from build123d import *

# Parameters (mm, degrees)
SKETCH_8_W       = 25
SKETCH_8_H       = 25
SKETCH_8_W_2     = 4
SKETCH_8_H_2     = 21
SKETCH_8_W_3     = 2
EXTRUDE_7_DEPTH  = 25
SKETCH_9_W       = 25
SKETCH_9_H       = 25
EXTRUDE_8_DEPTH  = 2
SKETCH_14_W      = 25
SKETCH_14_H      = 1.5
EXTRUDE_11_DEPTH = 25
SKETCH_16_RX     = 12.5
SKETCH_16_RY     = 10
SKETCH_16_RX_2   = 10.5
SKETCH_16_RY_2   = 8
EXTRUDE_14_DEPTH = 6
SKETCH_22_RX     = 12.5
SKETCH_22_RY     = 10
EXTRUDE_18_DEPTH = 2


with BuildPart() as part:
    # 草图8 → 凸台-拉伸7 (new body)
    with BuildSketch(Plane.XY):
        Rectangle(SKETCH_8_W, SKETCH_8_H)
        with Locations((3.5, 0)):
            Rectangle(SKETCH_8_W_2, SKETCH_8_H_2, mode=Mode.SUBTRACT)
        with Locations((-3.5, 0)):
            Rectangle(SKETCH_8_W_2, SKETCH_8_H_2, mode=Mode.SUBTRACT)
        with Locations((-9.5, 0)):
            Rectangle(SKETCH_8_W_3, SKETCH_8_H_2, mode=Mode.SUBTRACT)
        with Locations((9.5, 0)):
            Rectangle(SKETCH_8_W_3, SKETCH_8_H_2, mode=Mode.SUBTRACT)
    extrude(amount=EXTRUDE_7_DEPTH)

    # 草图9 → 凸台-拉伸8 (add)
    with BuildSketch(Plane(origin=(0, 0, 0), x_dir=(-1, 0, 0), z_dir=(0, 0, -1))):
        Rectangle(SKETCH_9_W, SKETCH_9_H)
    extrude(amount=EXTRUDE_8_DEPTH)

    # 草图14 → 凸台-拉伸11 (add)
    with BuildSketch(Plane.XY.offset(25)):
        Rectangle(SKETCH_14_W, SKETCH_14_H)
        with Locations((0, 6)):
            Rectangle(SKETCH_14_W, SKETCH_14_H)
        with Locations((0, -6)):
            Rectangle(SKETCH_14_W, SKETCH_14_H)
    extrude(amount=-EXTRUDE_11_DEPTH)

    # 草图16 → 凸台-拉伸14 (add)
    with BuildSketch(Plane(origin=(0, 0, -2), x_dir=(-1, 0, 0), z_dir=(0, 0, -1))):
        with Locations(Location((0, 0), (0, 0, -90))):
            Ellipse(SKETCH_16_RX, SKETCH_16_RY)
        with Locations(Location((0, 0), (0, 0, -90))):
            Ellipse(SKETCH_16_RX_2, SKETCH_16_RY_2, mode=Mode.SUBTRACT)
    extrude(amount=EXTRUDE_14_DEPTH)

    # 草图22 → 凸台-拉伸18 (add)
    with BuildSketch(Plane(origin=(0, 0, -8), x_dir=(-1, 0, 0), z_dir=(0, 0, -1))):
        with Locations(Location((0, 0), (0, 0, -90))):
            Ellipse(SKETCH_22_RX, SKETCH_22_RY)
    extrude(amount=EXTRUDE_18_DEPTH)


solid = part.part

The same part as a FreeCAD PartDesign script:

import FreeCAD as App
import Part
import Sketcher
from FreeCAD import Vector
Q = App.Units.Quantity

doc = App.newDocument("Part")
body = doc.addObject("PartDesign::Body", "Body")

# Sketch on XY plane
sketch1 = body.newObject("Sketcher::SketchObject", "Sketch")
sketch1.AttachmentSupport = (doc.getObject("XY_Plane"), [""])
sketch1.MapMode = "FlatFace"
sketch1.addGeometry(Part.LineSegment(Vector(-12.5, 12.5, 0), Vector(-12.5, -12.5, 0)), False)
sketch1.addGeometry(Part.LineSegment(Vector(-12.5, -12.5, 0), Vector(12.5, -12.5, 0)), False)
sketch1.addGeometry(Part.LineSegment(Vector(12.5, -12.5, 0), Vector(12.5, 12.5, 0)), False)
sketch1.addGeometry(Part.LineSegment(Vector(12.5, 12.5, 0), Vector(-12.5, 12.5, 0)), False)
sketch1.addGeometry(Part.LineSegment(Vector(-8.5, -10.5, 0), Vector(-10.5, -10.5, 0)), False)
sketch1.addGeometry(Part.LineSegment(Vector(-10.5, -10.5, 0), Vector(-10.5, 10.5, 0)), False)
sketch1.addGeometry(Part.LineSegment(Vector(-10.5, 10.5, 0), Vector(-8.5, 10.5, 0)), False)
sketch1.addGeometry(Part.LineSegment(Vector(-8.5, 10.5, 0), Vector(-8.5, -10.5, 0)), False)
sketch1.addGeometry(Part.LineSegment(Vector(-1.5, -10.5, 0), Vector(-5.5, -10.5, 0)), False)
sketch1.addGeometry(Part.LineSegment(Vector(-5.5, -10.5, 0), Vector(-5.5, 10.5, 0)), False)
sketch1.addGeometry(Part.LineSegment(Vector(-5.5, 10.5, 0), Vector(-1.5, 10.5, 0)), False)
sketch1.addGeometry(Part.LineSegment(Vector(-1.5, 10.5, 0), Vector(-1.5, -10.5, 0)), False)
sketch1.addGeometry(Part.LineSegment(Vector(5.5, -10.5, 0), Vector(1.5, -10.5, 0)), False)
sketch1.addGeometry(Part.LineSegment(Vector(1.5, -10.5, 0), Vector(1.5, 10.5, 0)), False)
sketch1.addGeometry(Part.LineSegment(Vector(1.5, 10.5, 0), Vector(5.5, 10.5, 0)), False)
sketch1.addGeometry(Part.LineSegment(Vector(5.5, 10.5, 0), Vector(5.5, -10.5, 0)), False)
sketch1.addGeometry(Part.LineSegment(Vector(10.5, -10.5, 0), Vector(8.5, -10.5, 0)), False)
sketch1.addGeometry(Part.LineSegment(Vector(8.5, -10.5, 0), Vector(8.5, 10.5, 0)), False)
sketch1.addGeometry(Part.LineSegment(Vector(8.5, 10.5, 0), Vector(10.5, 10.5, 0)), False)
sketch1.addGeometry(Part.LineSegment(Vector(10.5, 10.5, 0), Vector(10.5, -10.5, 0)), False)
sketch1.addConstraint(Sketcher.Constraint("Coincident", 0, 2, 1, 1))
sketch1.addConstraint(Sketcher.Constraint("Coincident", 1, 2, 2, 1))
sketch1.addConstraint(Sketcher.Constraint("Coincident", 2, 2, 3, 1))
sketch1.addConstraint(Sketcher.Constraint("Coincident", 3, 2, 0, 1))
sketch1.addConstraint(Sketcher.Constraint("Coincident", 4, 2, 5, 1))
sketch1.addConstraint(Sketcher.Constraint("Coincident", 5, 2, 6, 1))
sketch1.addConstraint(Sketcher.Constraint("Coincident", 6, 2, 7, 1))
sketch1.addConstraint(Sketcher.Constraint("Coincident", 7, 2, 4, 1))
sketch1.addConstraint(Sketcher.Constraint("Coincident", 8, 2, 9, 1))
sketch1.addConstraint(Sketcher.Constraint("Coincident", 9, 2, 10, 1))
sketch1.addConstraint(Sketcher.Constraint("Coincident", 10, 2, 11, 1))
sketch1.addConstraint(Sketcher.Constraint("Coincident", 11, 2, 8, 1))
sketch1.addConstraint(Sketcher.Constraint("Coincident", 12, 2, 13, 1))
sketch1.addConstraint(Sketcher.Constraint("Coincident", 13, 2, 14, 1))
sketch1.addConstraint(Sketcher.Constraint("Coincident", 14, 2, 15, 1))
sketch1.addConstraint(Sketcher.Constraint("Coincident", 15, 2, 12, 1))
sketch1.addConstraint(Sketcher.Constraint("Coincident", 16, 2, 17, 1))
sketch1.addConstraint(Sketcher.Constraint("Coincident", 17, 2, 18, 1))
sketch1.addConstraint(Sketcher.Constraint("Coincident", 18, 2, 19, 1))
sketch1.addConstraint(Sketcher.Constraint("Coincident", 19, 2, 16, 1))
sketch1.addConstraint(Sketcher.Constraint("Vertical", 0))
sketch1.addConstraint(Sketcher.Constraint("Horizontal", 1))
sketch1.addConstraint(Sketcher.Constraint("Vertical", 2))
sketch1.addConstraint(Sketcher.Constraint("Horizontal", 3))
sketch1.addConstraint(Sketcher.Constraint("Horizontal", 4))
sketch1.addConstraint(Sketcher.Constraint("Vertical", 5))
sketch1.addConstraint(Sketcher.Constraint("Horizontal", 6))
sketch1.addConstraint(Sketcher.Constraint("Vertical", 7))
sketch1.addConstraint(Sketcher.Constraint("Horizontal", 8))
sketch1.addConstraint(Sketcher.Constraint("Vertical", 9))
sketch1.addConstraint(Sketcher.Constraint("Horizontal", 10))
sketch1.addConstraint(Sketcher.Constraint("Vertical", 11))
sketch1.addConstraint(Sketcher.Constraint("Horizontal", 12))
sketch1.addConstraint(Sketcher.Constraint("Vertical", 13))
sketch1.addConstraint(Sketcher.Constraint("Horizontal", 14))
sketch1.addConstraint(Sketcher.Constraint("Vertical", 15))
sketch1.addConstraint(Sketcher.Constraint("Horizontal", 16))
sketch1.addConstraint(Sketcher.Constraint("Vertical", 17))
sketch1.addConstraint(Sketcher.Constraint("Horizontal", 18))
sketch1.addConstraint(Sketcher.Constraint("Vertical", 19))
sketch1.addConstraint(Sketcher.Constraint("Symmetric", 0, 2, 2, 2, -1, 1))
sketch1.addConstraint(Sketcher.Constraint("Symmetric", 10, 2, 12, 2, -1, 1))
sketch1.addConstraint(Sketcher.Constraint("Symmetric", 8, 2, 14, 2, -1, 1))
sketch1.addConstraint(Sketcher.Constraint("Symmetric", 6, 2, 16, 2, -1, 1))
sketch1.addConstraint(Sketcher.Constraint("Symmetric", 4, 2, 18, 2, -1, 1))
sketch1.addConstraint(Sketcher.Constraint("Horizontal", 7, 2, 8, 2))
sketch1.addConstraint(Sketcher.Constraint("Horizontal", 6, 2, 9, 2))
sketch1.addConstraint(Sketcher.Constraint("Horizontal", 11, 2, 12, 2))
sketch1.addConstraint(Sketcher.Constraint("Equal", 3, 0))
sketch1.addConstraint(Sketcher.Constraint("DistanceX", 1, 1, 1, 2, Q("25 mm")))
sketch1.addConstraint(Sketcher.Constraint("DistanceX", 4, 2, 4, 1, Q("2 mm")))
sketch1.addConstraint(Sketcher.Constraint("DistanceX", 8, 2, 8, 1, Q("4 mm")))
sketch1.addConstraint(Sketcher.Constraint("DistanceY", 5, 1, 5, 2, Q("21 mm")))
sketch1.addConstraint(Sketcher.Constraint("DistanceX", 0, 2, 4, 2, Q("2 mm")))
sketch1.addConstraint(Sketcher.Constraint("DistanceX", 7, 2, 8, 2, Q("3 mm")))
pad1 = body.newObject("PartDesign::Pad", "Pad")
pad1.Profile = sketch1
pad1.Length = 25

# Sketch on XY plane
sketch2 = body.newObject("Sketcher::SketchObject", "Sketch001")
sketch2.AttachmentSupport = (doc.getObject("XY_Plane"), [""])
sketch2.MapMode = "FlatFace"
sketch2.addGeometry(Part.LineSegment(Vector(12, 12, 0), Vector(12, -12, 0)), False)
sketch2.addGeometry(Part.LineSegment(Vector(12, -12, 0), Vector(-12, -12, 0)), False)
sketch2.addGeometry(Part.LineSegment(Vector(-12, -12, 0), Vector(-12, 12, 0)), False)
sketch2.addGeometry(Part.LineSegment(Vector(-12, 12, 0), Vector(12, 12, 0)), False)
sketch2.addConstraint(Sketcher.Constraint("Coincident", 0, 2, 1, 1))
sketch2.addConstraint(Sketcher.Constraint("Coincident", 1, 2, 2, 1))
sketch2.addConstraint(Sketcher.Constraint("Coincident", 2, 2, 3, 1))
sketch2.addConstraint(Sketcher.Constraint("Coincident", 3, 2, 0, 1))
sketch2.addConstraint(Sketcher.Constraint("Vertical", 0))
sketch2.addConstraint(Sketcher.Constraint("Horizontal", 1))
sketch2.addConstraint(Sketcher.Constraint("Vertical", 2))
sketch2.addConstraint(Sketcher.Constraint("Horizontal", 3))
sketch2.addConstraint(Sketcher.Constraint("Symmetric", 0, 2, 2, 2, -1, 1))
sketch2.addConstraint(Sketcher.Constraint("Equal", 3, 0))
sketch2.addConstraint(Sketcher.Constraint("DistanceX", 1, 2, 1, 1, Q("25 mm")))
pad2 = body.newObject("PartDesign::Pad", "Pad001")
pad2.Profile = sketch2
pad2.Length = 2
pad2.Reversed = True

# Sketch on XY plane
sketch3 = body.newObject("Sketcher::SketchObject", "Sketch002")
sketch3.AttachmentSupport = (doc.getObject("XY_Plane"), [""])
sketch3.MapMode = "FlatFace"
sketch3.AttachmentOffset = App.Placement(Vector(0, 0, 25), App.Rotation())
sketch3.addGeometry(Part.LineSegment(Vector(-12.5, 0.8, 0), Vector(-12.5, -0.8, 0)), False)
sketch3.addGeometry(Part.LineSegment(Vector(-12.5, -0.8, 0), Vector(12.5, -0.8, 0)), False)
sketch3.addGeometry(Part.LineSegment(Vector(12.5, -0.8, 0), Vector(12.5, 0.8, 0)), False)
sketch3.addGeometry(Part.LineSegment(Vector(12.5, 0.8, 0), Vector(-12.5, 0.8, 0)), False)
sketch3.addGeometry(Part.LineSegment(Vector(-12.5, 6.8, 0), Vector(-12.5, 5.2, 0)), False)
sketch3.addGeometry(Part.LineSegment(Vector(-12.5, 5.2, 0), Vector(12.5, 5.2, 0)), False)
sketch3.addGeometry(Part.LineSegment(Vector(12.5, 5.2, 0), Vector(12.5, 6.8, 0)), False)
sketch3.addGeometry(Part.LineSegment(Vector(12.5, 6.8, 0), Vector(-12.5, 6.8, 0)), False)
sketch3.addGeometry(Part.LineSegment(Vector(-12.5, -5.2, 0), Vector(-12.5, -6.8, 0)), False)
sketch3.addGeometry(Part.LineSegment(Vector(-12.5, -6.8, 0), Vector(12.5, -6.8, 0)), False)
sketch3.addGeometry(Part.LineSegment(Vector(12.5, -6.8, 0), Vector(12.5, -5.2, 0)), False)
sketch3.addGeometry(Part.LineSegment(Vector(12.5, -5.2, 0), Vector(-12.5, -5.2, 0)), False)
sketch3.addConstraint(Sketcher.Constraint("Coincident", 0, 2, 1, 1))
sketch3.addConstraint(Sketcher.Constraint("Coincident", 1, 2, 2, 1))
sketch3.addConstraint(Sketcher.Constraint("Coincident", 2, 2, 3, 1))
sketch3.addConstraint(Sketcher.Constraint("Coincident", 3, 2, 0, 1))
sketch3.addConstraint(Sketcher.Constraint("Coincident", 4, 2, 5, 1))
sketch3.addConstraint(Sketcher.Constraint("Coincident", 5, 2, 6, 1))
sketch3.addConstraint(Sketcher.Constraint("Coincident", 6, 2, 7, 1))
sketch3.addConstraint(Sketcher.Constraint("Coincident", 7, 2, 4, 1))
sketch3.addConstraint(Sketcher.Constraint("Coincident", 8, 2, 9, 1))
sketch3.addConstraint(Sketcher.Constraint("Coincident", 9, 2, 10, 1))
sketch3.addConstraint(Sketcher.Constraint("Coincident", 10, 2, 11, 1))
sketch3.addConstraint(Sketcher.Constraint("Coincident", 11, 2, 8, 1))
sketch3.addConstraint(Sketcher.Constraint("Vertical", 0))
sketch3.addConstraint(Sketcher.Constraint("Horizontal", 1))
sketch3.addConstraint(Sketcher.Constraint("Vertical", 2))
sketch3.addConstraint(Sketcher.Constraint("Horizontal", 3))
sketch3.addConstraint(Sketcher.Constraint("Vertical", 4))
sketch3.addConstraint(Sketcher.Constraint("Horizontal", 5))
sketch3.addConstraint(Sketcher.Constraint("Vertical", 6))
sketch3.addConstraint(Sketcher.Constraint("Horizontal", 7))
sketch3.addConstraint(Sketcher.Constraint("Vertical", 8))
sketch3.addConstraint(Sketcher.Constraint("Horizontal", 9))
sketch3.addConstraint(Sketcher.Constraint("Vertical", 10))
sketch3.addConstraint(Sketcher.Constraint("Horizontal", 11))
sketch3.addConstraint(Sketcher.Constraint("Symmetric", 0, 2, 2, 2, -1, 1))
sketch3.addConstraint(Sketcher.Constraint("Symmetric", 6, 2, 8, 2, -1, 1))
sketch3.addConstraint(Sketcher.Constraint("Symmetric", 4, 2, 10, 2, -1, 1))
sketch3.addConstraint(Sketcher.Constraint("Vertical", 3, 2, 4, 2))
sketch3.addConstraint(Sketcher.Constraint("Vertical", 2, 2, 5, 2))
sketch3.addConstraint(Sketcher.Constraint("Equal", 2, 4))
sketch3.addConstraint(Sketcher.Constraint("DistanceX", 1, 1, 1, 2, Q("25 mm")))
sketch3.addConstraint(Sketcher.Constraint("DistanceY", 0, 2, 0, 1, Q("1.5 mm")))
sketch3.addConstraint(Sketcher.Constraint("DistanceY", 0, 2, 4, 2, Q("6 mm")))
pad3 = body.newObject("PartDesign::Pad", "Pad002")
pad3.Profile = sketch3
pad3.Length = 25
pad3.Reversed = True

# Sketch on XY plane
sketch4 = body.newObject("Sketcher::SketchObject", "Sketch003")
sketch4.AttachmentSupport = (doc.getObject("XY_Plane"), [""])
sketch4.MapMode = "FlatFace"
sketch4.AttachmentOffset = App.Placement(Vector(0, 0, -2), App.Rotation())
sketch4.addGeometry(Part.Ellipse(Vector(0, -12.5, 0), Vector(10, 0, 0), Vector(0, 0, 0)), False)
sketch4.addGeometry(Part.Ellipse(Vector(0, -10.5, 0), Vector(8, 0, 0), Vector(0, 0, 0)), False)
sketch4.addConstraint(Sketcher.Constraint("Block", 0))
sketch4.addConstraint(Sketcher.Constraint("Block", 1))
pad4 = body.newObject("PartDesign::Pad", "Pad003")
pad4.Profile = sketch4
pad4.Length = 6
pad4.Reversed = True

# Sketch on XY plane
sketch5 = body.newObject("Sketcher::SketchObject", "Sketch004")
sketch5.AttachmentSupport = (doc.getObject("XY_Plane"), [""])
sketch5.MapMode = "FlatFace"
sketch5.AttachmentOffset = App.Placement(Vector(0, 0, -8), App.Rotation())
sketch5.addGeometry(Part.Ellipse(Vector(0, -12.5, 0), Vector(10, 0, 0), Vector(0, 0, 0)), False)
sketch5.addConstraint(Sketcher.Constraint("Block", 0))
pad5 = body.newObject("PartDesign::Pad", "Pad004")
pad5.Profile = sketch5
pad5.Length = 2
pad5.Reversed = True

doc.recompute()
